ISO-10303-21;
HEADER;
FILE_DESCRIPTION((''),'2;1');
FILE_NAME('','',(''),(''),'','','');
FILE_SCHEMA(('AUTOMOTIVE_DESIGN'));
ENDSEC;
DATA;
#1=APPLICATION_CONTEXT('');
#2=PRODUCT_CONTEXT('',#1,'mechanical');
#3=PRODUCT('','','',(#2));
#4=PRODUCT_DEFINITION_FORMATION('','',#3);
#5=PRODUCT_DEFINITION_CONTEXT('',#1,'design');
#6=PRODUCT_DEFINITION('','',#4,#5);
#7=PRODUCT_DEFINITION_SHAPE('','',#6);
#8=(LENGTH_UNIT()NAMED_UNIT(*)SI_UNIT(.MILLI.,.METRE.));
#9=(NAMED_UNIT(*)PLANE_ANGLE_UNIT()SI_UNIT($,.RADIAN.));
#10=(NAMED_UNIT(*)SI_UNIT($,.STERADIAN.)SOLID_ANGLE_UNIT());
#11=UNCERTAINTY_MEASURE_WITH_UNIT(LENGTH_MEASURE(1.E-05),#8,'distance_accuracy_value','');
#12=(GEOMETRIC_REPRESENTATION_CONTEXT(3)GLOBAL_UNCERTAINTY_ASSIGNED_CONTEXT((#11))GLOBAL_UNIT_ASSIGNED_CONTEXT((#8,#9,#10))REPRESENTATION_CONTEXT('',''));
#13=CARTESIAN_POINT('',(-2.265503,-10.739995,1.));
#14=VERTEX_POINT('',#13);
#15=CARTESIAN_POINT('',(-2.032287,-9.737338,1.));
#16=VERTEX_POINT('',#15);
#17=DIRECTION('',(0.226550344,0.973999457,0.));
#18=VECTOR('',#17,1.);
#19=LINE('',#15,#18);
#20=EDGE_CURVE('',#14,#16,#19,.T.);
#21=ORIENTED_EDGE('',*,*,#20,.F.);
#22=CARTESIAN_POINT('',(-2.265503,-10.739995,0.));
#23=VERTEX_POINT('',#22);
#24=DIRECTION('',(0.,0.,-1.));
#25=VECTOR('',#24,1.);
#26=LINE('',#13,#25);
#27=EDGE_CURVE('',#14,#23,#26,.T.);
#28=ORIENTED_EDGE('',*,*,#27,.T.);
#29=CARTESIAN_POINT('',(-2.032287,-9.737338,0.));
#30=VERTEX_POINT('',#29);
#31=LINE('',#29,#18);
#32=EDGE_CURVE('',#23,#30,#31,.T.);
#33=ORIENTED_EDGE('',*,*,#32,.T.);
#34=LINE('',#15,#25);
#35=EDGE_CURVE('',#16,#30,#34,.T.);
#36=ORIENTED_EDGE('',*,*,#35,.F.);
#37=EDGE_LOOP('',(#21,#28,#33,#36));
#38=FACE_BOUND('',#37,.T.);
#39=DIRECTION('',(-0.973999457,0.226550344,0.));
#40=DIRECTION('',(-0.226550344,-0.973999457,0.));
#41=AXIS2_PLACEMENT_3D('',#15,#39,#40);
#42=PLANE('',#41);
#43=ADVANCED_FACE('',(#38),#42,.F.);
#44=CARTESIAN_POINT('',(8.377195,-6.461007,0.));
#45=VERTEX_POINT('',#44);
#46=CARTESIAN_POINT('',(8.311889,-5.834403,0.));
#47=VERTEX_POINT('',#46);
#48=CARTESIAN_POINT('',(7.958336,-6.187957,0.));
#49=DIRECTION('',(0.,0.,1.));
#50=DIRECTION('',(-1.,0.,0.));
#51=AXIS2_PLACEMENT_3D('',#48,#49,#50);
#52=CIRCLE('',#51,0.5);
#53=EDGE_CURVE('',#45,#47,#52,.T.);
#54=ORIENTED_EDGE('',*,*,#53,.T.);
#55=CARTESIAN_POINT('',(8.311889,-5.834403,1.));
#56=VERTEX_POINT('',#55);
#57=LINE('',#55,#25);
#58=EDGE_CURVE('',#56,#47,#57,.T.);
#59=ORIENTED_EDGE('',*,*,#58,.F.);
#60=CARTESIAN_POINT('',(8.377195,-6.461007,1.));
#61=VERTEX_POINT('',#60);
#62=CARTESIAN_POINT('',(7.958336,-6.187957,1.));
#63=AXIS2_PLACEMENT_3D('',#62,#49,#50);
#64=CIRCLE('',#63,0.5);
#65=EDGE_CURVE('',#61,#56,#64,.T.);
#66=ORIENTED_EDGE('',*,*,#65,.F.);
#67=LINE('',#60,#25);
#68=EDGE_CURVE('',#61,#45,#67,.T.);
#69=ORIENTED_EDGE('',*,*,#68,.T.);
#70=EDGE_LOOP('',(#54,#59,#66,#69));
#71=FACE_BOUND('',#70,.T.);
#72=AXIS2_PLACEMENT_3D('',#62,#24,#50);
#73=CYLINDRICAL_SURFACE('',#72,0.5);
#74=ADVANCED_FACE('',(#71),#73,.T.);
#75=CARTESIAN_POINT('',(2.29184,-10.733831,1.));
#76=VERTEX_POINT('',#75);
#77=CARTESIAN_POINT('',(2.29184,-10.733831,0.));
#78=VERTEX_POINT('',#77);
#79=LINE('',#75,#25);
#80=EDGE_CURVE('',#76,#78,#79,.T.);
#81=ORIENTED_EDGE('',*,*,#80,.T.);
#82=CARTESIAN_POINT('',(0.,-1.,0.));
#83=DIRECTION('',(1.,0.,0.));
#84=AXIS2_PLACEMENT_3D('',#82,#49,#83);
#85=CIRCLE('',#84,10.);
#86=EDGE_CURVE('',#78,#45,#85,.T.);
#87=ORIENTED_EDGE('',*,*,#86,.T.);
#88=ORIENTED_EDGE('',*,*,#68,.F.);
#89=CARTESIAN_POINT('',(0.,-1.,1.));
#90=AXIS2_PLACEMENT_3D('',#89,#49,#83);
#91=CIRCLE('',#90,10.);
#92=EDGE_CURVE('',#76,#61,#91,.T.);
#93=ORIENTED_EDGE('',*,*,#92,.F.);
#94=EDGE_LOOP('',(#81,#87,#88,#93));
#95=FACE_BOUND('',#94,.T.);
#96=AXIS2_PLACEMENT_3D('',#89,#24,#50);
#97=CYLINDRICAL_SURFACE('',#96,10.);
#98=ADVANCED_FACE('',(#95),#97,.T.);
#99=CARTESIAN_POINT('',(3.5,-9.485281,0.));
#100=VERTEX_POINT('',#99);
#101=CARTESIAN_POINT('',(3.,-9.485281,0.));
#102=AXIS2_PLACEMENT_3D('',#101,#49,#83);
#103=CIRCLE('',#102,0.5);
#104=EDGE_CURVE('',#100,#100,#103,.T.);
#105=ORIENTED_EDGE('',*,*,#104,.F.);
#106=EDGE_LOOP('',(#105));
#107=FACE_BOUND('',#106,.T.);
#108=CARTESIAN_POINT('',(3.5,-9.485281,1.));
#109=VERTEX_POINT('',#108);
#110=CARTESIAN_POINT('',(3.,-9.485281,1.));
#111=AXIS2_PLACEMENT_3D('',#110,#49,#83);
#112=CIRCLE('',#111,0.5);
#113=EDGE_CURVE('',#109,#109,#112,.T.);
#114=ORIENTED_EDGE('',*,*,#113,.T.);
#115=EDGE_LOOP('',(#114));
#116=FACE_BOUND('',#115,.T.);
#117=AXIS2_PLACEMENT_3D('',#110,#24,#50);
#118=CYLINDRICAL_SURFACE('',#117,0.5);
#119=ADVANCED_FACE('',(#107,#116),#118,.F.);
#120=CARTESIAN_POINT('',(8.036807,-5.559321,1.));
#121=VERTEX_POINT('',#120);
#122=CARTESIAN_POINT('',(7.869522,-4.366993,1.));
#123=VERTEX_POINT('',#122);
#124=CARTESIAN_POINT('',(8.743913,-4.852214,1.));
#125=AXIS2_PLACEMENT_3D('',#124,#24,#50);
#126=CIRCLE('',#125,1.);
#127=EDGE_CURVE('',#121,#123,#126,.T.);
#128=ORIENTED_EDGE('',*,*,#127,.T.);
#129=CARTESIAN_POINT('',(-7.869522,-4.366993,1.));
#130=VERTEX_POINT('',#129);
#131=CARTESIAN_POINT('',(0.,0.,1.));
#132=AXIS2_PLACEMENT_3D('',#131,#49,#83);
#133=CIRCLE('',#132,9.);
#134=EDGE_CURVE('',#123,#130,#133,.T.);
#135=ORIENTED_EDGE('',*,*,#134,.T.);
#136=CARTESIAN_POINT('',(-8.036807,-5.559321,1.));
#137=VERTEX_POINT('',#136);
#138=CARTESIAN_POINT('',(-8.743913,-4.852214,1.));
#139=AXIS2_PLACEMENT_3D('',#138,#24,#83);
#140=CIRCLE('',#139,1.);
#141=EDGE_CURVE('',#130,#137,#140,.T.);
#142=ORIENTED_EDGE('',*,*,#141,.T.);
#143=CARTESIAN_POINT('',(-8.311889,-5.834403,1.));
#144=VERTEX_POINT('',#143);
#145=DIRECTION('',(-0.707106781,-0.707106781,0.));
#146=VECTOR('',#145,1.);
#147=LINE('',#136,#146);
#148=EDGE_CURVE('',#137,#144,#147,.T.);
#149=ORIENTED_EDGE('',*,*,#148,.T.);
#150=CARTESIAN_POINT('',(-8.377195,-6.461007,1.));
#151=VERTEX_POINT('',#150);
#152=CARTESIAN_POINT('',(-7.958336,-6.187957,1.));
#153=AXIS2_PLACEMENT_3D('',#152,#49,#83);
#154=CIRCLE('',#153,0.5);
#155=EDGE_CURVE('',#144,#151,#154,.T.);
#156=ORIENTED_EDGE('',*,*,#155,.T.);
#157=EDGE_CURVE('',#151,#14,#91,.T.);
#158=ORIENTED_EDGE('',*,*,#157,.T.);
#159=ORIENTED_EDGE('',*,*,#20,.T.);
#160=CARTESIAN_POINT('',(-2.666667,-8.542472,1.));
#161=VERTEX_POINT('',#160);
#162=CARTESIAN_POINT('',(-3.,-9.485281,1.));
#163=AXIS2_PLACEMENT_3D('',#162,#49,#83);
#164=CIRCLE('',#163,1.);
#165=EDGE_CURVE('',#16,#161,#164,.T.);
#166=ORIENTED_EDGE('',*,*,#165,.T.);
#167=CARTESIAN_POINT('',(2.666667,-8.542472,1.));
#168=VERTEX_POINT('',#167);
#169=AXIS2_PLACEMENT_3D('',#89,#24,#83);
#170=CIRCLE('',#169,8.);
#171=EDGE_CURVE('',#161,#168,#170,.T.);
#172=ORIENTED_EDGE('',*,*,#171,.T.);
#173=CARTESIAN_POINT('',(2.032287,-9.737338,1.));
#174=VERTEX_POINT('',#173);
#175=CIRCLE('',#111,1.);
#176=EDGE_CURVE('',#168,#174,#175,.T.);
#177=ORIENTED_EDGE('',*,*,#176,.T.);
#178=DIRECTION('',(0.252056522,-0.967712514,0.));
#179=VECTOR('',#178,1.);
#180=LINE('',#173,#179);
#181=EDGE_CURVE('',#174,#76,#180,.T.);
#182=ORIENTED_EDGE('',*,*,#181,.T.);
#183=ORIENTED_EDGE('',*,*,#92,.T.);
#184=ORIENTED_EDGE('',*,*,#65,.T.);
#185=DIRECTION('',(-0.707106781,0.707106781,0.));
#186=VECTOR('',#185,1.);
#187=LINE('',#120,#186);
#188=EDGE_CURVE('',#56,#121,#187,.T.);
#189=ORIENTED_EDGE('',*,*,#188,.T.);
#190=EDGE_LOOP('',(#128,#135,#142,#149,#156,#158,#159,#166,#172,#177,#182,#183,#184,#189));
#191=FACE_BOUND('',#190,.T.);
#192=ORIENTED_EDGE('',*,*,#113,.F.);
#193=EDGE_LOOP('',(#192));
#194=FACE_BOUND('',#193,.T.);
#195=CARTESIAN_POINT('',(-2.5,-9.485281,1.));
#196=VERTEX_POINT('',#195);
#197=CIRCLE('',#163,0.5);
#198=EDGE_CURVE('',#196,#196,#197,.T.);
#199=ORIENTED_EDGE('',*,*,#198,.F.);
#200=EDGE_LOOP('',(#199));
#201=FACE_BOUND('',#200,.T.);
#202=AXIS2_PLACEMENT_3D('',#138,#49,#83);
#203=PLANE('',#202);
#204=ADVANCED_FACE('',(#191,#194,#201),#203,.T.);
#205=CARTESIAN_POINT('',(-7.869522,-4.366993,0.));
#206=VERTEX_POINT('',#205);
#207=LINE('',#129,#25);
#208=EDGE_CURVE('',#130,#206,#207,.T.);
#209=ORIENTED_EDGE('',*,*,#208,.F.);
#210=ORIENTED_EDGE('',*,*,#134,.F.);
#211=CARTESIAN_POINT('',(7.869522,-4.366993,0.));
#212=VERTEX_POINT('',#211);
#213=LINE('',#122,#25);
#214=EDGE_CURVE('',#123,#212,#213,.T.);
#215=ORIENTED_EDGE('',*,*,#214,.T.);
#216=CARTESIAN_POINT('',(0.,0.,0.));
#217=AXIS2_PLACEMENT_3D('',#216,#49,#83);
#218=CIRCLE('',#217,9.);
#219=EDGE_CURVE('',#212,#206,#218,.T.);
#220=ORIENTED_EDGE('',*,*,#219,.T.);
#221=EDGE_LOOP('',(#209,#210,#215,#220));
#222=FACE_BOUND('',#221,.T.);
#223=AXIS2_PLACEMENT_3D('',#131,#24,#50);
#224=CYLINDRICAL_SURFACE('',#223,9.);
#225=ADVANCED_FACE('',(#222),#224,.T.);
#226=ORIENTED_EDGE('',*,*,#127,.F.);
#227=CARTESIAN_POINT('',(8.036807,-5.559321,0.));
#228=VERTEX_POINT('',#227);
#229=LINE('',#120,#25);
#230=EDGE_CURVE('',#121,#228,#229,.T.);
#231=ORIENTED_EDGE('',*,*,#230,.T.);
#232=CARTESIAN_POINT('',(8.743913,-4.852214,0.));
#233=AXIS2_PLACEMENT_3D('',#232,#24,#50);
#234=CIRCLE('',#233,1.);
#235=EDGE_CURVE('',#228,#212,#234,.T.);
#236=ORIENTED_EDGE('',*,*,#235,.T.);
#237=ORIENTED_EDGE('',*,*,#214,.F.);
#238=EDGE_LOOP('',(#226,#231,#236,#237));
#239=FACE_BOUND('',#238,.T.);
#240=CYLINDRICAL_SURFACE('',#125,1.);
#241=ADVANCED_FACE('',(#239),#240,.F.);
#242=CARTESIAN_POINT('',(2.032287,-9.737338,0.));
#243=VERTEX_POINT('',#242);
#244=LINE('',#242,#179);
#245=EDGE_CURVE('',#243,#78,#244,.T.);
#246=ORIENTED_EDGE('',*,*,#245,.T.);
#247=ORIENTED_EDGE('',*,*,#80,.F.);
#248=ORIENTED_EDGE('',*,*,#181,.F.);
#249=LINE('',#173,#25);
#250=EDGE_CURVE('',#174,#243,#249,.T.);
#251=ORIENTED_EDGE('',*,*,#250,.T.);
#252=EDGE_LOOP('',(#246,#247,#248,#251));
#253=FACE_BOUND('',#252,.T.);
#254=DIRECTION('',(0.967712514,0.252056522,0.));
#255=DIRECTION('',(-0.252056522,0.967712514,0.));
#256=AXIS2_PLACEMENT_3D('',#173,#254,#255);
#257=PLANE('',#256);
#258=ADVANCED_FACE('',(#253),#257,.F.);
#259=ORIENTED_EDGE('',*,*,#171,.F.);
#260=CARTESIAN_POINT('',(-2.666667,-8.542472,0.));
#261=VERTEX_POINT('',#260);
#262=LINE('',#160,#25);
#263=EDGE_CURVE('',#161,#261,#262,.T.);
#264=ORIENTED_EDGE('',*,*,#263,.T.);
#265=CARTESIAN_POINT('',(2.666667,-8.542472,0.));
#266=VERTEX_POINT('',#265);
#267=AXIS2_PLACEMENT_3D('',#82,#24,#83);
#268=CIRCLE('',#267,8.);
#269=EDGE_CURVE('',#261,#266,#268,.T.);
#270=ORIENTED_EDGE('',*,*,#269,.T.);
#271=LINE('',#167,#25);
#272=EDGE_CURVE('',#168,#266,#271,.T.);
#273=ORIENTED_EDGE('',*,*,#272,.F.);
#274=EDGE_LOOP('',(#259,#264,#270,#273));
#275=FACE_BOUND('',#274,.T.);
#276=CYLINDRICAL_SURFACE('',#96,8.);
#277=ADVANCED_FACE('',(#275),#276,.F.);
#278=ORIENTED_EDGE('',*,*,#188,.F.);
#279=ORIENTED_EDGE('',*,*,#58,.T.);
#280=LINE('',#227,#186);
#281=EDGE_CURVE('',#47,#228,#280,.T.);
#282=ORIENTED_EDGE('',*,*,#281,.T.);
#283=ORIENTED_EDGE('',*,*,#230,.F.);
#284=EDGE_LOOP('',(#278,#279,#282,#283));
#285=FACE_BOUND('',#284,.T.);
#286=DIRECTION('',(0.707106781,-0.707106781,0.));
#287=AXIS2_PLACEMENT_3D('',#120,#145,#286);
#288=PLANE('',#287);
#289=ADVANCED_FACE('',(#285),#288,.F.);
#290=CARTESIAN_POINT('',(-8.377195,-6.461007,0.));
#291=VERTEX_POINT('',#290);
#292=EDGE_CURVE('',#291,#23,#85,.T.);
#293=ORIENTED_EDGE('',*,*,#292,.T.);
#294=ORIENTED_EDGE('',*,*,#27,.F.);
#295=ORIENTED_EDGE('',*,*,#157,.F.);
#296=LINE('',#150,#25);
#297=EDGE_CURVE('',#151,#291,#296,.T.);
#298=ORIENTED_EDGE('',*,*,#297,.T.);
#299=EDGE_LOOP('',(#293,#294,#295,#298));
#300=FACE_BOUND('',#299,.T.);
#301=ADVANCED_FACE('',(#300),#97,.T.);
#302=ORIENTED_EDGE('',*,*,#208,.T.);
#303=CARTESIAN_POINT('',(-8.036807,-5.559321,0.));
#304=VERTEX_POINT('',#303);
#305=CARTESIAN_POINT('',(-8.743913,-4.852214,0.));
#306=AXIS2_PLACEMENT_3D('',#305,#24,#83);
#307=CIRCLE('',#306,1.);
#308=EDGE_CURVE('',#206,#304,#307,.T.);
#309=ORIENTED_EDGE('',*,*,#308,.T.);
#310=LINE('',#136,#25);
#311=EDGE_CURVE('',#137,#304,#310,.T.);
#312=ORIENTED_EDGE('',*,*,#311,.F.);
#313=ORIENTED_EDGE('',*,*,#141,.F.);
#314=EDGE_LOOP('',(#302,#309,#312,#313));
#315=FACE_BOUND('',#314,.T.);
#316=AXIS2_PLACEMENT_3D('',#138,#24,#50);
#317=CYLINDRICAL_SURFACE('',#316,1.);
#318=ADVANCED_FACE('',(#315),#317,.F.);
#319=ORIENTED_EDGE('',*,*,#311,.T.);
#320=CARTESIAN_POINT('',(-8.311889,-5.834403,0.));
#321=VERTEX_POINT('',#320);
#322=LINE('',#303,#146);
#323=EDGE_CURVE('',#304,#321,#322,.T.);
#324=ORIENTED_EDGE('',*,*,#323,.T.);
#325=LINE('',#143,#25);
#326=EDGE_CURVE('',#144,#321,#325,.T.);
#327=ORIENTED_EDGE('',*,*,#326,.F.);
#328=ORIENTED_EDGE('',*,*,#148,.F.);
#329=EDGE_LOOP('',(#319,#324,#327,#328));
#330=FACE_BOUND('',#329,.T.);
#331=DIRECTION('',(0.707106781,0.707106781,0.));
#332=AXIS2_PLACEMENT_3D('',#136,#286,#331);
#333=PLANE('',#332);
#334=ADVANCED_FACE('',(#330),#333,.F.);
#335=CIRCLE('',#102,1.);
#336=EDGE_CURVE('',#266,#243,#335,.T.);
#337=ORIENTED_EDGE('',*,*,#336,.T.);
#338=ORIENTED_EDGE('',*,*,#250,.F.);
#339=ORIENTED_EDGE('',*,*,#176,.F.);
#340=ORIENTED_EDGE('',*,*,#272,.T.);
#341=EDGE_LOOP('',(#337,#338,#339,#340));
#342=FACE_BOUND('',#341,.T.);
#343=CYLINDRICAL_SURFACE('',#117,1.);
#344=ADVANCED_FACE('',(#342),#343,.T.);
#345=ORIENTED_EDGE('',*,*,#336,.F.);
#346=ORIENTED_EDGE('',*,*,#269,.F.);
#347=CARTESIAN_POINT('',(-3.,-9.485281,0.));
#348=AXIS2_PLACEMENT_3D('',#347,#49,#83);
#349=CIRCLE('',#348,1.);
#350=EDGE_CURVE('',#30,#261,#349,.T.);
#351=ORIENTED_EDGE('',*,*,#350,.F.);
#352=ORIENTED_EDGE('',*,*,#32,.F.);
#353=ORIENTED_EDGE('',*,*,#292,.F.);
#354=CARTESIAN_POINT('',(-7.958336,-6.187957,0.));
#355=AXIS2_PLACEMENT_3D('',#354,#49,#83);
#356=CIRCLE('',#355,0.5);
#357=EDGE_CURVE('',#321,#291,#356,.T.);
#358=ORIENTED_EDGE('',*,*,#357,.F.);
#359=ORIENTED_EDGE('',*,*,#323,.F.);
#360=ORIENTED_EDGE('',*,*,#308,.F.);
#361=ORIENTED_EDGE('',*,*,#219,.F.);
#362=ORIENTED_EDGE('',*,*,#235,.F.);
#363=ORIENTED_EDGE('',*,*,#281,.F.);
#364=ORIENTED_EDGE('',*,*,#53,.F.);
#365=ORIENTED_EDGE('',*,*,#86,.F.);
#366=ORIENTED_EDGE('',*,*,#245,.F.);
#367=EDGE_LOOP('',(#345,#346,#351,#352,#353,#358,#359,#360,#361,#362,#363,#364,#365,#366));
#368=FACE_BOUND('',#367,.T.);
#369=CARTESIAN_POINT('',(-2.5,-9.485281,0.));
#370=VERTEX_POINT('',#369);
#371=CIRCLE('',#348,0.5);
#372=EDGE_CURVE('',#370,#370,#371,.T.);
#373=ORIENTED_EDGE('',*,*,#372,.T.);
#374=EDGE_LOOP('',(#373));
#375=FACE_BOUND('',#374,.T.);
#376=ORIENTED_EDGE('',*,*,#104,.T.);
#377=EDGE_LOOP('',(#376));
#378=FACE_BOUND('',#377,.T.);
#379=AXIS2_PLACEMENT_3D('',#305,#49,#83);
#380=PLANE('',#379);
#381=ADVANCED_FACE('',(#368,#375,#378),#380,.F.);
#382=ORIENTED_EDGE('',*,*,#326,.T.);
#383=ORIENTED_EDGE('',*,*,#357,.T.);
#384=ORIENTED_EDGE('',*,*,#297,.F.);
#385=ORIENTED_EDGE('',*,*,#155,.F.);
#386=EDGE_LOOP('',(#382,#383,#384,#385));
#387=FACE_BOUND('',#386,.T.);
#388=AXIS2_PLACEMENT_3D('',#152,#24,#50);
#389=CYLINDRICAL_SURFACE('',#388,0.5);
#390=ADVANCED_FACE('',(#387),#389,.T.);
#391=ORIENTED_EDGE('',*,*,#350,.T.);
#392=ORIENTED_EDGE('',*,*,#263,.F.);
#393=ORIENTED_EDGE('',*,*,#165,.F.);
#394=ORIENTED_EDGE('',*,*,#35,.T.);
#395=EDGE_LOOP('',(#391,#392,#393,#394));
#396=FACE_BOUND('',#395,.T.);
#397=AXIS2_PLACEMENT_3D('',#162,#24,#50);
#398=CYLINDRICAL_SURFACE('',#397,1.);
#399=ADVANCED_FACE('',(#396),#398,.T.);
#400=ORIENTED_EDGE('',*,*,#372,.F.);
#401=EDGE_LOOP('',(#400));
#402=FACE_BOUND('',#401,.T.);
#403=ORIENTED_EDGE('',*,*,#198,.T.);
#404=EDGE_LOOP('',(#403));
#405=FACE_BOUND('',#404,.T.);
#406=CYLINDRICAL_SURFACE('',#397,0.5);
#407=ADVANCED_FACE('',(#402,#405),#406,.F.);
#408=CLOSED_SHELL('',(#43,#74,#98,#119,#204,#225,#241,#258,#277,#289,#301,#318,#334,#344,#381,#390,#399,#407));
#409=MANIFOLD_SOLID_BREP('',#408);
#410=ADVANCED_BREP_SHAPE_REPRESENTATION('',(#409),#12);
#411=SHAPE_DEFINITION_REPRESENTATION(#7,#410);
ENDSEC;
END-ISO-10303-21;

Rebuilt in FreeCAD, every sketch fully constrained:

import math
import FreeCAD as App
import Part
import Sketcher

doc = App.newDocument("Part")
body = doc.addObject("PartDesign::Body", "Body")

# Sketch on XY plane
sketch1 = doc.addObject("Sketcher::SketchObject", "Sketch")
body.addObject(sketch1)
sketch1.AttachmentSupport = (doc.XY_Plane, [""])
sketch1.MapMode = "FlatFace"
sketch1.addGeometry([
    Part.LineSegment(App.Vector(-8.04, -5.56, 0), App.Vector(-8.31, -5.83, 0)),  # 0
    Part.ArcOfCircle(Part.Circle(App.Vector(-7.96, -6.19, 0), App.Vector(0, 0, 1), 0.5), math.radians(135), math.radians(213)),  # 1
    Part.ArcOfCircle(Part.Circle(App.Vector(0, -1, 0), App.Vector(0, 0, 1), 10), math.radians(-147), math.radians(-103)),  # 2
    Part.LineSegment(App.Vector(-2.27, -10.74, 0), App.Vector(-2.03, -9.74, 0)),  # 3
    Part.ArcOfCircle(Part.Circle(App.Vector(-3, -9.49, 0), App.Vector(0, 0, 1), 1), math.radians(-15), math.radians(71)),  # 4
    Part.ArcOfCircle(Part.Circle(App.Vector(0, -1, 0), App.Vector(0, 0, 1), 8), math.radians(-71), math.radians(251)),  # 5
    Part.ArcOfCircle(Part.Circle(App.Vector(3, -9.49, 0), App.Vector(0, 0, 1), 1), math.radians(109), math.radians(195)),  # 6
    Part.LineSegment(App.Vector(2.03, -9.74, 0), App.Vector(2.29, -10.73, 0)),  # 7
    Part.ArcOfCircle(Part.Circle(App.Vector(0, -1, 0), App.Vector(0, 0, 1), 10), math.radians(-77), math.radians(-33)),  # 8
    Part.ArcOfCircle(Part.Circle(App.Vector(7.96, -6.19, 0), App.Vector(0, 0, 1), 0.5), math.radians(-33), math.radians(45)),  # 9
    Part.LineSegment(App.Vector(8.31, -5.83, 0), App.Vector(8.04, -5.56, 0)),  # 10
    Part.ArcOfCircle(Part.Circle(App.Vector(8.74, -4.85, 0), App.Vector(0, 0, 1), 1), math.radians(151), math.radians(225)),  # 11
    Part.ArcOfCircle(Part.Circle(App.Vector(0, 0, 0), App.Vector(0, 0, 1), 9), math.radians(-29), math.radians(209)),  # 12
    Part.ArcOfCircle(Part.Circle(App.Vector(-8.74, -4.85, 0), App.Vector(0, 0, 1), 1), math.radians(-45), math.radians(29)),  # 13
    Part.Circle(App.Vector(-3, -9.49, 0), App.Vector(0, 0, 1), 0.5),  # 14
    Part.Circle(App.Vector(3, -9.49, 0), App.Vector(0, 0, 1), 0.5),  # 15
], False)
sketch1.addConstraint([
    Sketcher.Constraint("Tangent", 0, 2, 1, 1),
    Sketcher.Constraint("Tangent", 1, 2, 2, 1),
    Sketcher.Constraint("Coincident", 2, 2, 3, 1),
    Sketcher.Constraint("Coincident", 3, 2, 4, 1),
    Sketcher.Constraint("Tangent", 4, 2, 5, 2),
    Sketcher.Constraint("Tangent", 5, 1, 6, 1),
    Sketcher.Constraint("Tangent", 6, 2, 7, 1),
    Sketcher.Constraint("Coincident", 7, 2, 8, 1),
    Sketcher.Constraint("Tangent", 8, 2, 9, 1),
    Sketcher.Constraint("Tangent", 9, 2, 10, 1),
    Sketcher.Constraint("Tangent", 10, 2, 11, 2),
    Sketcher.Constraint("Tangent", 11, 1, 12, 1),
    Sketcher.Constraint("Tangent", 12, 2, 13, 2),
    Sketcher.Constraint("Tangent", 13, 1, 0, 1),
    Sketcher.Constraint("Coincident", 12, 3, -1, 1),
    Sketcher.Constraint("Coincident", 5, 3, 2, 3),
    Sketcher.Constraint("Coincident", 8, 3, 2, 3),
    Sketcher.Constraint("Coincident", 14, 3, 4, 3),
    Sketcher.Constraint("Coincident", 15, 3, 6, 3),
    Sketcher.Constraint("Equal", 4, 6),
    Sketcher.Constraint("Equal", 2, 8),
    Sketcher.Constraint("Equal", 1, 9),
    Sketcher.Constraint("Equal", 6, 11),
    Sketcher.Constraint("Equal", 11, 13),
    Sketcher.Constraint("Equal", 9, 14),
    Sketcher.Constraint("Equal", 14, 15),
    Sketcher.Constraint("Symmetric", 4, 3, 6, 3, -2),
    Sketcher.Constraint("Symmetric", 0, 2, 9, 2, -2),
    Sketcher.Constraint("Perpendicular", 0, 10),
    Sketcher.Constraint("Horizontal", 3, 2, 6, 2),
    Sketcher.Constraint("Diameter", 14, 1.0),
    Sketcher.Constraint("Radius", 2, 10.0),
    Sketcher.Constraint("Radius", 4, 1.0),
    Sketcher.Constraint("Radius", 5, 8.0),
    Sketcher.Constraint("Radius", 12, 9.0),
    Sketcher.Constraint("DistanceY", 2, 3, -1, 1, 1.0),
    Sketcher.Constraint("DistanceX", 4, 3, -1, 1, 3.0),
    Sketcher.Constraint("Distance", 7, 1.029741),
    Sketcher.Constraint("DistanceX", 0, 2, -1, 1, 8.311889),
    Sketcher.Constraint("DistanceX", 2, 2, 5, 1, 4.93217),
])
pad1 = doc.addObject("PartDesign::Pad", "Pad")
body.addObject(pad1)
pad1.Profile = sketch1
pad1.Length = 1

doc.recompute()
